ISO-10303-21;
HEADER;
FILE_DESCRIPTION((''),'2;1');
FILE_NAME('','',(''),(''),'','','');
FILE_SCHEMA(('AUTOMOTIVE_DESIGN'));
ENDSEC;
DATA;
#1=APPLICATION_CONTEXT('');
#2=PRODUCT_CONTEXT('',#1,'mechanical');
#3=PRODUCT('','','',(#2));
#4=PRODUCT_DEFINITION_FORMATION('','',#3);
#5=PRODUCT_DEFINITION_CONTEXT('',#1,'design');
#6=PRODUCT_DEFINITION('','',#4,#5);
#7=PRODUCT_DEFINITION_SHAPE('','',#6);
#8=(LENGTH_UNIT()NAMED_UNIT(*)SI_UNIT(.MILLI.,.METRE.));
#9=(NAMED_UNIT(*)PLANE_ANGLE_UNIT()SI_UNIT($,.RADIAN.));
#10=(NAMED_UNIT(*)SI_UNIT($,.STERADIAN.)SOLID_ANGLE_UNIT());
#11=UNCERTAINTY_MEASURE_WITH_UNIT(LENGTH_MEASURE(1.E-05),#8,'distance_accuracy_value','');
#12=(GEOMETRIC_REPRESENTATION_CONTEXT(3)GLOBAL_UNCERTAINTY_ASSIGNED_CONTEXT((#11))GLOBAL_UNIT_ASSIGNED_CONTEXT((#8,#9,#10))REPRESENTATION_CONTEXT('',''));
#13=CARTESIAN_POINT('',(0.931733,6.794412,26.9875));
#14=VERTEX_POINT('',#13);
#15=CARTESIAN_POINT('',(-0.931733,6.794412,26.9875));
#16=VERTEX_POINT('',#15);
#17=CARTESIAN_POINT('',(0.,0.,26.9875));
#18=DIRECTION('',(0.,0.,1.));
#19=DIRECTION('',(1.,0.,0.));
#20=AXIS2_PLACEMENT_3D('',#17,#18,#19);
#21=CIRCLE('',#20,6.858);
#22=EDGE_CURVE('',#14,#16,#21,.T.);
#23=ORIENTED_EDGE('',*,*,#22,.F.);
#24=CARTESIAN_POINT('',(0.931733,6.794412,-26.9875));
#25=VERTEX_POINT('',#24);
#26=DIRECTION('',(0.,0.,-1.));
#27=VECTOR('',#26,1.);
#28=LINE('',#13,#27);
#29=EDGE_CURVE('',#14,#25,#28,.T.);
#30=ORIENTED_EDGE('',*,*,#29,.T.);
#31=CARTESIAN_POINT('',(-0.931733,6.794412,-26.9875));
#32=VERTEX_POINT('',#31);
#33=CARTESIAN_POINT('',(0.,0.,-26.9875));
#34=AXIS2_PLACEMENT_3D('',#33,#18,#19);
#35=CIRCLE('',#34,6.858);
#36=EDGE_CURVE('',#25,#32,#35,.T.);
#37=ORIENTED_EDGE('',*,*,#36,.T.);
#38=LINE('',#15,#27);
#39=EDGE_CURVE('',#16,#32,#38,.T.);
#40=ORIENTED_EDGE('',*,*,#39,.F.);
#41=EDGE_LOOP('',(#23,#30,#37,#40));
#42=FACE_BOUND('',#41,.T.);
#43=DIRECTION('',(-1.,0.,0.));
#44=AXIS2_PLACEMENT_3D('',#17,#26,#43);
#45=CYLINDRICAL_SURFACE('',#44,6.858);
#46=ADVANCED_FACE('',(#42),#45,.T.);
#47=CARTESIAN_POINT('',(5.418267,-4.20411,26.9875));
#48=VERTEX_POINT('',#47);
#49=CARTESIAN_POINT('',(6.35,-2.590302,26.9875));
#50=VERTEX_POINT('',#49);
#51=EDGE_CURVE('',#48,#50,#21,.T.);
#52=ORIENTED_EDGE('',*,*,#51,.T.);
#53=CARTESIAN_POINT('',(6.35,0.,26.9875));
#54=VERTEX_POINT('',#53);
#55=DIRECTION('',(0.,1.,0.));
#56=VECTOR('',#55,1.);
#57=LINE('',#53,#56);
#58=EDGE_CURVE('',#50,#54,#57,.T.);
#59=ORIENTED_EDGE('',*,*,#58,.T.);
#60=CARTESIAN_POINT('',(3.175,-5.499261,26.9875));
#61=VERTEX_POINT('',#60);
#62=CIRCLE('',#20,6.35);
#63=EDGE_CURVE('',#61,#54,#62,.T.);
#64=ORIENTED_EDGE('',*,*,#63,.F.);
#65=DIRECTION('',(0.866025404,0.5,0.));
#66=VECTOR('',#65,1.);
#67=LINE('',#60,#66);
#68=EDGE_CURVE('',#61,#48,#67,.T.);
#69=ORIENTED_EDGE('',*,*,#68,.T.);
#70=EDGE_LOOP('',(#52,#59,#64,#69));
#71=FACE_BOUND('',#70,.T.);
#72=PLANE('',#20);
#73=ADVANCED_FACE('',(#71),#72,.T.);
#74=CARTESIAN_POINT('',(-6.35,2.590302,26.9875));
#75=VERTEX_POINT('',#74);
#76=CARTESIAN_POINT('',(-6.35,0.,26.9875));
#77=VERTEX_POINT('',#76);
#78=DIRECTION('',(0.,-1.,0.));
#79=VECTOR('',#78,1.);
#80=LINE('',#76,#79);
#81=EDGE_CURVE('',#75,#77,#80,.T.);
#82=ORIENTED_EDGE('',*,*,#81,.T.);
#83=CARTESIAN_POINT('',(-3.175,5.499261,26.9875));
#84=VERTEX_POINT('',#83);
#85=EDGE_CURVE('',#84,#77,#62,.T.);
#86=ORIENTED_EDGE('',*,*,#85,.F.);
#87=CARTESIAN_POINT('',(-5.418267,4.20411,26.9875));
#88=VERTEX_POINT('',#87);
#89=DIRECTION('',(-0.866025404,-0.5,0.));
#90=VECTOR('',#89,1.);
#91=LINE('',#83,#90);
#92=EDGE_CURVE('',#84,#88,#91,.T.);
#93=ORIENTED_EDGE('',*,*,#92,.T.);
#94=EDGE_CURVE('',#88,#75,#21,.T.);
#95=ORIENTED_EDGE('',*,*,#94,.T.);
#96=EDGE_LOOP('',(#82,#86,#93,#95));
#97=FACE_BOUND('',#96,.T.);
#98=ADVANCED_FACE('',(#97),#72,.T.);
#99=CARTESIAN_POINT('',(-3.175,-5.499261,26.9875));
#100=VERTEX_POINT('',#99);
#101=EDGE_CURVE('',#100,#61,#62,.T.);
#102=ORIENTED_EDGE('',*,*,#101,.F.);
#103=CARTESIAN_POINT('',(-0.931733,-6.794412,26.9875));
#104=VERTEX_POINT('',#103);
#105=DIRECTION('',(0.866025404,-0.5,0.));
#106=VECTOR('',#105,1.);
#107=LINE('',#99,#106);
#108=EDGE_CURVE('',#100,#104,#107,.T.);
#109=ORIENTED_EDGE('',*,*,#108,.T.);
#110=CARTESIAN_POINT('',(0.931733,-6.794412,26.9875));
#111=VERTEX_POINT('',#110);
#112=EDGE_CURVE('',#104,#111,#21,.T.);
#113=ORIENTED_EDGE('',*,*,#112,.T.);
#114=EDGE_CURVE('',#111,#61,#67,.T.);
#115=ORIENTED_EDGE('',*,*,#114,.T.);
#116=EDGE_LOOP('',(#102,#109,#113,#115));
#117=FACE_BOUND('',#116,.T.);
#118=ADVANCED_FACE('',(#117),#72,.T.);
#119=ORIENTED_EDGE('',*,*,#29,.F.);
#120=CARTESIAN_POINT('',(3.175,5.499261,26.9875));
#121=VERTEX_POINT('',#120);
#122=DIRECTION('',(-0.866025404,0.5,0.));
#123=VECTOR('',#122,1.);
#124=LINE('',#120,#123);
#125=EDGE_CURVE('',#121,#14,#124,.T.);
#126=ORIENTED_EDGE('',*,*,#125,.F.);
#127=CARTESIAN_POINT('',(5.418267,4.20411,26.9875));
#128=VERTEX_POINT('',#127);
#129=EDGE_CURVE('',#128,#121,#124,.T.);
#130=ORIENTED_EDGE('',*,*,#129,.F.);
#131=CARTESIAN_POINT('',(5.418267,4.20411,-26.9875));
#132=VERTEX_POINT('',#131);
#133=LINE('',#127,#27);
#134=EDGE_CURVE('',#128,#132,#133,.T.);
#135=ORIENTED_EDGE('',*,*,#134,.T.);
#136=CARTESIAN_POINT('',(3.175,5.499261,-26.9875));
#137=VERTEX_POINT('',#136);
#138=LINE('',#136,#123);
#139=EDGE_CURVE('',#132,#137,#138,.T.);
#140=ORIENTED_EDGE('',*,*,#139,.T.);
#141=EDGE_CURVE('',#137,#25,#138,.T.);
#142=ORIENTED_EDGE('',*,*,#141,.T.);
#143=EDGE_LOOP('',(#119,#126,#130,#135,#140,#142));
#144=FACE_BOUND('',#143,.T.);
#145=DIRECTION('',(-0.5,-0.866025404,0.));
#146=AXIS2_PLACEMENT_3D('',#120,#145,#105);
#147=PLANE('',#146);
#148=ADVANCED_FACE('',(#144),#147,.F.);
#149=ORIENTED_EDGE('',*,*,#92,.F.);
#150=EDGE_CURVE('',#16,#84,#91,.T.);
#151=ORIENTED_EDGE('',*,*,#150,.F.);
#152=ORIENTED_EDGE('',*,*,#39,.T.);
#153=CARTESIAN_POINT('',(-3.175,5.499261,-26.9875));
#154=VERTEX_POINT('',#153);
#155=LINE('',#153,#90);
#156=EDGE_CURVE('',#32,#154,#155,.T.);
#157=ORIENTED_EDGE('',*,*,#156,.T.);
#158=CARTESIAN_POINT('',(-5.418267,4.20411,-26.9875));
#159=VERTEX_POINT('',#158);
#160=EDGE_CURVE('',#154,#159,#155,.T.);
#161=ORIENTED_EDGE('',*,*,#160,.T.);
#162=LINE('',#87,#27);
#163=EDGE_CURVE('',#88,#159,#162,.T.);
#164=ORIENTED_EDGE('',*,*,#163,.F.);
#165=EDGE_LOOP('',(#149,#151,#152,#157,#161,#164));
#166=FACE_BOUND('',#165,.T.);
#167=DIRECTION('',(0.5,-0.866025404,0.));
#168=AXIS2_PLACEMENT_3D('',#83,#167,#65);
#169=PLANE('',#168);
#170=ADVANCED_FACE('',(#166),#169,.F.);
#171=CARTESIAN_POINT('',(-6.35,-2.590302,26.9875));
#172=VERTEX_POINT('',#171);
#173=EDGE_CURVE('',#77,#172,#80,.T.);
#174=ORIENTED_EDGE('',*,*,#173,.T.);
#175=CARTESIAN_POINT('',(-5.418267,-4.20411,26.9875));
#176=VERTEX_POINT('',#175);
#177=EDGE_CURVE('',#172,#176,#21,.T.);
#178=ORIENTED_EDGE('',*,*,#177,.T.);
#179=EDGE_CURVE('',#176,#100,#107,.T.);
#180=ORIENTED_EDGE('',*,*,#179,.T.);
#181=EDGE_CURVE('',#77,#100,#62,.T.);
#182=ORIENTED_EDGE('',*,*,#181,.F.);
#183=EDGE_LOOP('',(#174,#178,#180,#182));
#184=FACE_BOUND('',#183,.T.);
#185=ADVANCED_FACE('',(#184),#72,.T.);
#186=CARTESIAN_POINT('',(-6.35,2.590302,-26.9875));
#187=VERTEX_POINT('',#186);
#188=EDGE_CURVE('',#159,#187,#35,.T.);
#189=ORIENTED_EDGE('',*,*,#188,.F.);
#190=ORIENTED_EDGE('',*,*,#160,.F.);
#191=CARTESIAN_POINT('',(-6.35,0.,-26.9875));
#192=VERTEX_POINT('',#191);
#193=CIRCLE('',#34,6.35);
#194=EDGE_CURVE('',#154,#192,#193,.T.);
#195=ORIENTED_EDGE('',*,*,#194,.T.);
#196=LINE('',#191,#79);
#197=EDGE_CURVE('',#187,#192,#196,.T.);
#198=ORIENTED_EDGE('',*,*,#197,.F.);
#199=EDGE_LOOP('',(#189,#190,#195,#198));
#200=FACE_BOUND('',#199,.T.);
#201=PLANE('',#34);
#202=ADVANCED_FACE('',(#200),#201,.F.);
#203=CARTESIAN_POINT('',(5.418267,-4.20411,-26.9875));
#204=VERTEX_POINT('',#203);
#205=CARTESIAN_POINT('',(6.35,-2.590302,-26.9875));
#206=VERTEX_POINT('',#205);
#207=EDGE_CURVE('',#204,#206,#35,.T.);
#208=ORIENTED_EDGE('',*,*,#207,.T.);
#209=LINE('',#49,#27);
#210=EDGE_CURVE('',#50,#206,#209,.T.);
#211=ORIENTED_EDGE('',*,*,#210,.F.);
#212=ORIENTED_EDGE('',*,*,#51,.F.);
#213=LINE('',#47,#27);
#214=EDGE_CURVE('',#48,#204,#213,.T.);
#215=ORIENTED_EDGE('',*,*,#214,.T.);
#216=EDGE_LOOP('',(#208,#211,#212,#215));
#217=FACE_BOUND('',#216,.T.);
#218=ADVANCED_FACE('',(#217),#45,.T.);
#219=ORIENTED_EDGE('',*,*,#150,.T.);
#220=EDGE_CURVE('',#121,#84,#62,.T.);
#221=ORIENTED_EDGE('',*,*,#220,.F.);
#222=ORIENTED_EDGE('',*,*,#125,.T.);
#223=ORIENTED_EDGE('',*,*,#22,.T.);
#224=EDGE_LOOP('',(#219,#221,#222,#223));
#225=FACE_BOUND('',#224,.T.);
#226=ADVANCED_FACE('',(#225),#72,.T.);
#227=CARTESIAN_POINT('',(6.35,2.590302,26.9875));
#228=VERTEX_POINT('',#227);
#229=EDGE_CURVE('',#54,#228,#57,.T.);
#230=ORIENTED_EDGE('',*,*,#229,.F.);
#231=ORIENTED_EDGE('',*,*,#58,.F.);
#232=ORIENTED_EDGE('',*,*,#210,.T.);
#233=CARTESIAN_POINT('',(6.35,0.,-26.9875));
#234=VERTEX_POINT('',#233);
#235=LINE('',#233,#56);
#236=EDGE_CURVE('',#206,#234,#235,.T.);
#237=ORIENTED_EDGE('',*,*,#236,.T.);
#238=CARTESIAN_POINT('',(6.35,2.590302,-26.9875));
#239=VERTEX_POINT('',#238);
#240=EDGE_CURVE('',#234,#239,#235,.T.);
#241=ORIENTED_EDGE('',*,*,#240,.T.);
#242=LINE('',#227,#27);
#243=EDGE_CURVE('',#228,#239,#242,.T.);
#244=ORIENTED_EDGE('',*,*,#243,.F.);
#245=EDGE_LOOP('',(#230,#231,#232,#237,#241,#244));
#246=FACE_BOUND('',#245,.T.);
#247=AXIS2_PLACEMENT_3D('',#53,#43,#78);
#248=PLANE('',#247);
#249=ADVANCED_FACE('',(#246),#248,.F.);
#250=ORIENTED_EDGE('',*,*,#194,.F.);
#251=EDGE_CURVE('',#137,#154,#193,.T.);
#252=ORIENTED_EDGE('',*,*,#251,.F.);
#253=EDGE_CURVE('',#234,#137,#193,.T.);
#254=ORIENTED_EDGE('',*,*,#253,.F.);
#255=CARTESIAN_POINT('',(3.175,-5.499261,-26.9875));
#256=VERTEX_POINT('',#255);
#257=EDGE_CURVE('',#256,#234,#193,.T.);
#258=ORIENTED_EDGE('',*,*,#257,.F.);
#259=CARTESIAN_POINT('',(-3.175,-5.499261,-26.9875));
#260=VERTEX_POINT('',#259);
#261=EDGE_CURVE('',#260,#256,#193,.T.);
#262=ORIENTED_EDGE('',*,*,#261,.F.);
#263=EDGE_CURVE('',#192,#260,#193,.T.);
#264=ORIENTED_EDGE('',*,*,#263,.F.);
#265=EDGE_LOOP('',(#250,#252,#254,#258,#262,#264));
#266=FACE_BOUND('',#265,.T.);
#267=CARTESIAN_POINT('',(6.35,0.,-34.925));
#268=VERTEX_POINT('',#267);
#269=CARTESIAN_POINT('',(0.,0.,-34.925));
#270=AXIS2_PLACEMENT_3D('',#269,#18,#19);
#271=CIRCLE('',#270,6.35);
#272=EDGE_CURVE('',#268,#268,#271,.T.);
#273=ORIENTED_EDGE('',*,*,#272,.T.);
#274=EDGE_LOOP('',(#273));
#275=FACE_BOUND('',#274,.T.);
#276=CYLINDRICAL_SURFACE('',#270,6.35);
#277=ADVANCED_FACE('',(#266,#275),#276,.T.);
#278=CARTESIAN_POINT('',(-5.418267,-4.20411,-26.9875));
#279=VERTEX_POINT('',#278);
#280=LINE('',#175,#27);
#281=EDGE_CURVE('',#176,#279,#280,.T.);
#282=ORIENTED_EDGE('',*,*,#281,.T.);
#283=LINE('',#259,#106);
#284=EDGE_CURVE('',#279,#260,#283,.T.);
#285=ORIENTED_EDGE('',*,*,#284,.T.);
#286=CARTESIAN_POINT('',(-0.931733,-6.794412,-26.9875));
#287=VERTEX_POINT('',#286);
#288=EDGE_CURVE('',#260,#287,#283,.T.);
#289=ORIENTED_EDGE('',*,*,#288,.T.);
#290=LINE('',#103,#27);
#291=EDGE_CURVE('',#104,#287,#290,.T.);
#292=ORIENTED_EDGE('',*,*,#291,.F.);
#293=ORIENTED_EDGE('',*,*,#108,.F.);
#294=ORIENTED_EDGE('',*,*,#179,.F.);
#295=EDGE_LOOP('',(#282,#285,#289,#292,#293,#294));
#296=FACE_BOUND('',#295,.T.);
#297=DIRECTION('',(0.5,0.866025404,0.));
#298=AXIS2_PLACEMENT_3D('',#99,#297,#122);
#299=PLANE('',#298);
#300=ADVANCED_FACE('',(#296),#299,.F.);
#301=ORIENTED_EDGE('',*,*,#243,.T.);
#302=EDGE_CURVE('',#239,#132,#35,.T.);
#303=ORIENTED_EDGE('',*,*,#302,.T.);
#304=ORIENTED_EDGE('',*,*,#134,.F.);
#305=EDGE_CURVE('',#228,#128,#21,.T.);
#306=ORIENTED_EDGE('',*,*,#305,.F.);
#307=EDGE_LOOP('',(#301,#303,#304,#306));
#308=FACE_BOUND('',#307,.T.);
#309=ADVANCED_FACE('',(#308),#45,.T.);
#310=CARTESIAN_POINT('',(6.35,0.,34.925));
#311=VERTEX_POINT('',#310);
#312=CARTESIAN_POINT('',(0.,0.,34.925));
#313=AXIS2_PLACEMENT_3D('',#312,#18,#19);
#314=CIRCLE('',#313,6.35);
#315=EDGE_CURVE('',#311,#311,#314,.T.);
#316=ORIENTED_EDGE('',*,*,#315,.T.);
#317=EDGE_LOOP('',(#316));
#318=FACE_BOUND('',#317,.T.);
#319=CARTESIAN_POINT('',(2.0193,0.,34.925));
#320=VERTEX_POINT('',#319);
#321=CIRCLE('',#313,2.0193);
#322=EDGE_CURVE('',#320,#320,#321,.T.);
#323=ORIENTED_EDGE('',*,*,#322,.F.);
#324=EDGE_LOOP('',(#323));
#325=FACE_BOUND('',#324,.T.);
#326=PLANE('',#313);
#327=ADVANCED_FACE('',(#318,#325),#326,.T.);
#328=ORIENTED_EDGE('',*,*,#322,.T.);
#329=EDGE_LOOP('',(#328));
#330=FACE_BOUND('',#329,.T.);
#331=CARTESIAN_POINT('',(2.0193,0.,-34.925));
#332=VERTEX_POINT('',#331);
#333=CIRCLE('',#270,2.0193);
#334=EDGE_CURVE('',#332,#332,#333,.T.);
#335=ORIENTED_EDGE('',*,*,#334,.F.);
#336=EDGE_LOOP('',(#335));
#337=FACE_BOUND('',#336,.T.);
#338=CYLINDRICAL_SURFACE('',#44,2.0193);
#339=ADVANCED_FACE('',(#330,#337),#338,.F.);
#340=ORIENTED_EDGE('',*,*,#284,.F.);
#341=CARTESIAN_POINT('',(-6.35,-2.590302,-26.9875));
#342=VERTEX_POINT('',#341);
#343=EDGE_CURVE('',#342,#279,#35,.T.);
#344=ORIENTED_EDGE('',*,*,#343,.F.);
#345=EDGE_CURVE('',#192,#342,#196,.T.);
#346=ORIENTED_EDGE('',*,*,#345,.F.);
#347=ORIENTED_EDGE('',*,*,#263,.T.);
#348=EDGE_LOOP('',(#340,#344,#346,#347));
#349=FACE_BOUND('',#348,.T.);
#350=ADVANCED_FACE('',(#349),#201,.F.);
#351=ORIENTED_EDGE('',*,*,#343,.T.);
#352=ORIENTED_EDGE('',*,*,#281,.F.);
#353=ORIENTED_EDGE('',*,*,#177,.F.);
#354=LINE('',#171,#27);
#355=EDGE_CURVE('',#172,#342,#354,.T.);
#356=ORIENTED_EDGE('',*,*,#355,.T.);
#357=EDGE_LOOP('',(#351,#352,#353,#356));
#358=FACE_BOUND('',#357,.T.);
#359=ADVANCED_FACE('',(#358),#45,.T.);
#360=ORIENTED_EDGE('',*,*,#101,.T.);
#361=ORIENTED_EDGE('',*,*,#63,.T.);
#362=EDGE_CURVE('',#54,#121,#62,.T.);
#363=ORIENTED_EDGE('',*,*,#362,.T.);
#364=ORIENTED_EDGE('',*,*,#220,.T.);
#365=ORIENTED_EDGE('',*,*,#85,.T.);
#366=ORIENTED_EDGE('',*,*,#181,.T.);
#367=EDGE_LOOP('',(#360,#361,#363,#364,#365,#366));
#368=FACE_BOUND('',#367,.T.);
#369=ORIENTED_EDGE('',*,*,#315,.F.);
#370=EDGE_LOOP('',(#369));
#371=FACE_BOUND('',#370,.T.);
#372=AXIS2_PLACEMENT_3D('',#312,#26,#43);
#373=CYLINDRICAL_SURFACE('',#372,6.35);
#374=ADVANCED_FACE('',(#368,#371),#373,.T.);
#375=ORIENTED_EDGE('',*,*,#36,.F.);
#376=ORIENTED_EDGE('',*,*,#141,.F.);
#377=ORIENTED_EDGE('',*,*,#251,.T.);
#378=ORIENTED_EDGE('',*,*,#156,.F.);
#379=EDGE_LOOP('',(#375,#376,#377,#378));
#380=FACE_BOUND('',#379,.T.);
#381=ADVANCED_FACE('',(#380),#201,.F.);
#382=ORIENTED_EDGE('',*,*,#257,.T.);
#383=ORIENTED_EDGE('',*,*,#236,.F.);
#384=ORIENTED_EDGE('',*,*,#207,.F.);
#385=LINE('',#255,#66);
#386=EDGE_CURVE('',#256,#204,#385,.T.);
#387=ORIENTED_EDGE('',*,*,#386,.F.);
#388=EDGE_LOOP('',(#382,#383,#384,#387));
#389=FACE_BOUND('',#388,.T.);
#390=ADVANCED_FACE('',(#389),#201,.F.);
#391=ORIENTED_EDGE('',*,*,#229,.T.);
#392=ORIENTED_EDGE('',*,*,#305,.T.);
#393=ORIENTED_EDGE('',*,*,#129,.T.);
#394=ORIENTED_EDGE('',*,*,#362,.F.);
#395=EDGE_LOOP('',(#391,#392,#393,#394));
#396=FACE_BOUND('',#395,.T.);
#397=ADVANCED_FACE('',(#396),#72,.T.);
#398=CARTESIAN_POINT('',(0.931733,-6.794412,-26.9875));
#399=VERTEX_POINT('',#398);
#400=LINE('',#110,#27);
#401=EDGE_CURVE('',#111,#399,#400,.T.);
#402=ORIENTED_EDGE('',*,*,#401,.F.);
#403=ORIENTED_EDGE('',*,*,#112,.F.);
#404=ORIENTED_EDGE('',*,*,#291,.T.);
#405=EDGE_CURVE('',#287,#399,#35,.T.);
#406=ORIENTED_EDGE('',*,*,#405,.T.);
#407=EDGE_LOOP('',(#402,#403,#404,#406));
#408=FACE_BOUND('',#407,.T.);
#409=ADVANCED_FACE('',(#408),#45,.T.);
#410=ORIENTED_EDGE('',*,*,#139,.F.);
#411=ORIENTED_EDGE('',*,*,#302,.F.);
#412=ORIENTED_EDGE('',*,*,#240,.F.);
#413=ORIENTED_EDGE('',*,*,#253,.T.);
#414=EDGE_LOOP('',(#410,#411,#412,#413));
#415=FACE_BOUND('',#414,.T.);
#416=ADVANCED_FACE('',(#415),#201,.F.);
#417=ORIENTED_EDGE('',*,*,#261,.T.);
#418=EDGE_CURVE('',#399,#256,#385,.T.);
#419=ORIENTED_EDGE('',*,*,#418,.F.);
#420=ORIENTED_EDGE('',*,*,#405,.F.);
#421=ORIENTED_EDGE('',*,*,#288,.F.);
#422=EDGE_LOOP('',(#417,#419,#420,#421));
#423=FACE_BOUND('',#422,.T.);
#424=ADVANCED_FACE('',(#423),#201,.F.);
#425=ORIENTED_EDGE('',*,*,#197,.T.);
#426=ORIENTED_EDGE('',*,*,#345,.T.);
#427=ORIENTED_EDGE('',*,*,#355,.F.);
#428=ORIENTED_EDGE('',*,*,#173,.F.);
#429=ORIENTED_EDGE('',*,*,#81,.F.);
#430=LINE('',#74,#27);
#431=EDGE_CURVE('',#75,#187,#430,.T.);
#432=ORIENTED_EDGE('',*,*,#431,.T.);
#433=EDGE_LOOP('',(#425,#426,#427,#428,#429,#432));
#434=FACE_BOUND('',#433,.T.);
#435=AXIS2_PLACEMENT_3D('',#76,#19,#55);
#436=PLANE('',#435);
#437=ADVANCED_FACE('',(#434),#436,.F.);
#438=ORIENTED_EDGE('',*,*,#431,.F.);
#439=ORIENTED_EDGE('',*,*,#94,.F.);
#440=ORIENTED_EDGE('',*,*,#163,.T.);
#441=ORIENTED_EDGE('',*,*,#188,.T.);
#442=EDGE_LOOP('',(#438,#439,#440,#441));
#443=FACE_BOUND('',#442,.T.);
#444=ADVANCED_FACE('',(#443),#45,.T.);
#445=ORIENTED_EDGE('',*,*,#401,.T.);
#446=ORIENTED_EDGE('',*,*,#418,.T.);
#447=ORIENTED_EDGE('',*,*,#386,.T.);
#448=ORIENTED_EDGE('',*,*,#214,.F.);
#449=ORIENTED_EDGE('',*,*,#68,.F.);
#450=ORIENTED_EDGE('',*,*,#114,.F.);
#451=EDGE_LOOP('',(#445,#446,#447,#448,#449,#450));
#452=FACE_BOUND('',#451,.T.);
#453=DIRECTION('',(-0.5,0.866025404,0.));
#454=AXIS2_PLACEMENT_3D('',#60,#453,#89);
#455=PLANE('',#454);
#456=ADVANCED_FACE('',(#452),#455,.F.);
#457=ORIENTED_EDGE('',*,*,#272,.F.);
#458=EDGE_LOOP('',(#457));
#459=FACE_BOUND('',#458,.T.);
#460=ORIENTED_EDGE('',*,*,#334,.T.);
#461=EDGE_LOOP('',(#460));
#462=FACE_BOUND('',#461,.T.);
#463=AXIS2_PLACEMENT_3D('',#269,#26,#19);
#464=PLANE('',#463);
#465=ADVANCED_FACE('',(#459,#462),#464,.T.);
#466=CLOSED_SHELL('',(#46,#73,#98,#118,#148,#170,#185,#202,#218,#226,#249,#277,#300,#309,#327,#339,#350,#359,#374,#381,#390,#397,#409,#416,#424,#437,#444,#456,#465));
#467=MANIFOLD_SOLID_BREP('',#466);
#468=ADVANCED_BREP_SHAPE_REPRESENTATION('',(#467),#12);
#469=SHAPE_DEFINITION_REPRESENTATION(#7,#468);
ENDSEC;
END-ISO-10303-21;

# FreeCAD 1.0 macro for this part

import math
import FreeCAD as App
import Part
import Sketcher
from FreeCAD import Vector
Q = App.Units.Quantity

doc = App.newDocument("Part")
body = doc.addObject("PartDesign::Body", "Body")

sketch1 = body.newObject("Sketcher::SketchObject", "Sketch")
sketch1.AttachmentSupport = (doc.getObject("XY_Plane"), [""])
sketch1.MapMode = "FlatFace"
sketch1.addGeometry([
    Part.ArcOfCircle(Part.Circle(Vector(0, 0, 0), Vector(0, 0, 1), 6.9), math.radians(82.19), math.radians(97.81)),
    Part.LineSegment(Vector(-0.9, 6.8, 0), Vector(-5.4, 4.2, 0)),
    Part.ArcOfCircle(Part.Circle(Vector(0, 0, 0), Vector(0, 0, 1), 6.9), math.radians(142.19), math.radians(157.81)),
    Part.LineSegment(Vector(-6.3, 2.6, 0), Vector(-6.3, -2.6, 0)),
    Part.ArcOfCircle(Part.Circle(Vector(0, 0, 0), Vector(0, 0, 1), 6.9), math.radians(-157.81), math.radians(-142.19)),
    Part.LineSegment(Vector(-5.4, -4.2, 0), Vector(-0.9, -6.8, 0)),
    Part.ArcOfCircle(Part.Circle(Vector(0, 0, 0), Vector(0, 0, 1), 6.9), math.radians(-97.81), math.radians(-82.19)),
    Part.LineSegment(Vector(0.9, -6.8, 0), Vector(5.4, -4.2, 0)),
    Part.ArcOfCircle(Part.Circle(Vector(0, 0, 0), Vector(0, 0, 1), 6.9), math.radians(-37.81), math.radians(-22.19)),
    Part.LineSegment(Vector(6.3, -2.6, 0), Vector(6.3, 2.6, 0)),
    Part.ArcOfCircle(Part.Circle(Vector(0, 0, 0), Vector(0, 0, 1), 6.9), math.radians(22.19), math.radians(37.81)),
    Part.LineSegment(Vector(5.4, 4.2, 0), Vector(0.9, 6.8, 0)),
    Part.Circle(Vector(0, 0, 0), Vector(0, 0, 1), 2),
], False)
sketch1.addConstraint([
    Sketcher.Constraint("Coincident", 0, 2, 1, 1),
    Sketcher.Constraint("Coincident", 1, 2, 2, 1),
    Sketcher.Constraint("Coincident", 2, 2, 3, 1),
    Sketcher.Constraint("Coincident", 3, 2, 4, 1),
    Sketcher.Constraint("Coincident", 4, 2, 5, 1),
    Sketcher.Constraint("Coincident", 5, 2, 6, 1),
    Sketcher.Constraint("Coincident", 6, 2, 7, 1),
    Sketcher.Constraint("Coincident", 7, 2, 8, 1),
    Sketcher.Constraint("Coincident", 8, 2, 9, 1),
    Sketcher.Constraint("Coincident", 9, 2, 10, 1),
    Sketcher.Constraint("Coincident", 10, 2, 11, 1),
    Sketcher.Constraint("Coincident", 11, 2, 0, 1),
    Sketcher.Constraint("Vertical", 3),
    Sketcher.Constraint("Vertical", 9),
    Sketcher.Constraint("Coincident", 0, 3, -1, 1),
    Sketcher.Constraint("Coincident", 2, 3, -1, 1),
    Sketcher.Constraint("Coincident", 4, 3, -1, 1),
    Sketcher.Constraint("Coincident", 6, 3, -1, 1),
    Sketcher.Constraint("Coincident", 8, 3, -1, 1),
    Sketcher.Constraint("Coincident", 10, 3, -1, 1),
    Sketcher.Constraint("Coincident", 12, 3, -1, 1),
    Sketcher.Constraint("Equal", 0, 2),
    Sketcher.Constraint("Equal", 2, 4),
    Sketcher.Constraint("Equal", 4, 6),
    Sketcher.Constraint("Equal", 6, 8),
    Sketcher.Constraint("Equal", 8, 10),
    Sketcher.Constraint("Parallel", 1, 7),
    Sketcher.Constraint("Parallel", 5, 11),
    Sketcher.Constraint("Horizontal", 5, 2, 6, 2),
    Sketcher.Constraint("Horizontal", 4, 2, 7, 2),
    Sketcher.Constraint("Horizontal", 3, 2, 8, 2),
    Sketcher.Constraint("Horizontal", 1, 2, 10, 2),
    Sketcher.Constraint("Vertical", 1, 2, 4, 2),
    Sketcher.Constraint("Radius", 0, Q("0.27 in")),
    Sketcher.Constraint("Diameter", 12, Q("0.159 in")),
    Sketcher.Constraint("Angle", 1, Q("-150 deg")),
    Sketcher.Constraint("DistanceX", 2, 2, -1, 1, Q("0.25 in")),
    Sketcher.Constraint("DistanceX", 4, 2, 6, 2, Q("0.25 in")),
])
pad1 = body.newObject("PartDesign::Pad", "Pad")
pad1.Profile = sketch1
pad1.Length = Q("2.125 in")
pad1.Midplane = True

sketch2 = body.newObject("Sketcher::SketchObject", "Sketch001")
sketch2.AttachmentSupport = (doc.getObject("XY_Plane"), [""])
sketch2.MapMode = "FlatFace"
sketch2.AttachmentOffset = App.Placement(Vector(0, 0, 1.0625 * 25.4), App.Rotation())
sketch2.addGeometry([
    Part.Circle(Vector(0, 0, 0), Vector(0, 0, 1), 6.3),
    Part.Circle(Vector(0, 0, 0), Vector(0, 0, 1), 2),
], False)
sketch2.addConstraint([
    Sketcher.Constraint("Coincident", 0, 3, -1, 1),
    Sketcher.Constraint("Coincident", 1, 3, -1, 1),
    Sketcher.Constraint("Diameter", 0, Q("0.5 in")),
    Sketcher.Constraint("Diameter", 1, Q("0.159 in")),
])
pad2 = body.newObject("PartDesign::Pad", "Pad001")
pad2.Profile = sketch2
pad2.Length = Q("0.3125 in")
doc.recompute()

mirrored = body.newObject("PartDesign::Mirrored", "Mirrored")
mirrored.Originals = [pad2]
mirrored.MirrorPlane = (doc.getObject("XY_Plane"), [""])
body.Tip = mirrored

doc.recompute()
